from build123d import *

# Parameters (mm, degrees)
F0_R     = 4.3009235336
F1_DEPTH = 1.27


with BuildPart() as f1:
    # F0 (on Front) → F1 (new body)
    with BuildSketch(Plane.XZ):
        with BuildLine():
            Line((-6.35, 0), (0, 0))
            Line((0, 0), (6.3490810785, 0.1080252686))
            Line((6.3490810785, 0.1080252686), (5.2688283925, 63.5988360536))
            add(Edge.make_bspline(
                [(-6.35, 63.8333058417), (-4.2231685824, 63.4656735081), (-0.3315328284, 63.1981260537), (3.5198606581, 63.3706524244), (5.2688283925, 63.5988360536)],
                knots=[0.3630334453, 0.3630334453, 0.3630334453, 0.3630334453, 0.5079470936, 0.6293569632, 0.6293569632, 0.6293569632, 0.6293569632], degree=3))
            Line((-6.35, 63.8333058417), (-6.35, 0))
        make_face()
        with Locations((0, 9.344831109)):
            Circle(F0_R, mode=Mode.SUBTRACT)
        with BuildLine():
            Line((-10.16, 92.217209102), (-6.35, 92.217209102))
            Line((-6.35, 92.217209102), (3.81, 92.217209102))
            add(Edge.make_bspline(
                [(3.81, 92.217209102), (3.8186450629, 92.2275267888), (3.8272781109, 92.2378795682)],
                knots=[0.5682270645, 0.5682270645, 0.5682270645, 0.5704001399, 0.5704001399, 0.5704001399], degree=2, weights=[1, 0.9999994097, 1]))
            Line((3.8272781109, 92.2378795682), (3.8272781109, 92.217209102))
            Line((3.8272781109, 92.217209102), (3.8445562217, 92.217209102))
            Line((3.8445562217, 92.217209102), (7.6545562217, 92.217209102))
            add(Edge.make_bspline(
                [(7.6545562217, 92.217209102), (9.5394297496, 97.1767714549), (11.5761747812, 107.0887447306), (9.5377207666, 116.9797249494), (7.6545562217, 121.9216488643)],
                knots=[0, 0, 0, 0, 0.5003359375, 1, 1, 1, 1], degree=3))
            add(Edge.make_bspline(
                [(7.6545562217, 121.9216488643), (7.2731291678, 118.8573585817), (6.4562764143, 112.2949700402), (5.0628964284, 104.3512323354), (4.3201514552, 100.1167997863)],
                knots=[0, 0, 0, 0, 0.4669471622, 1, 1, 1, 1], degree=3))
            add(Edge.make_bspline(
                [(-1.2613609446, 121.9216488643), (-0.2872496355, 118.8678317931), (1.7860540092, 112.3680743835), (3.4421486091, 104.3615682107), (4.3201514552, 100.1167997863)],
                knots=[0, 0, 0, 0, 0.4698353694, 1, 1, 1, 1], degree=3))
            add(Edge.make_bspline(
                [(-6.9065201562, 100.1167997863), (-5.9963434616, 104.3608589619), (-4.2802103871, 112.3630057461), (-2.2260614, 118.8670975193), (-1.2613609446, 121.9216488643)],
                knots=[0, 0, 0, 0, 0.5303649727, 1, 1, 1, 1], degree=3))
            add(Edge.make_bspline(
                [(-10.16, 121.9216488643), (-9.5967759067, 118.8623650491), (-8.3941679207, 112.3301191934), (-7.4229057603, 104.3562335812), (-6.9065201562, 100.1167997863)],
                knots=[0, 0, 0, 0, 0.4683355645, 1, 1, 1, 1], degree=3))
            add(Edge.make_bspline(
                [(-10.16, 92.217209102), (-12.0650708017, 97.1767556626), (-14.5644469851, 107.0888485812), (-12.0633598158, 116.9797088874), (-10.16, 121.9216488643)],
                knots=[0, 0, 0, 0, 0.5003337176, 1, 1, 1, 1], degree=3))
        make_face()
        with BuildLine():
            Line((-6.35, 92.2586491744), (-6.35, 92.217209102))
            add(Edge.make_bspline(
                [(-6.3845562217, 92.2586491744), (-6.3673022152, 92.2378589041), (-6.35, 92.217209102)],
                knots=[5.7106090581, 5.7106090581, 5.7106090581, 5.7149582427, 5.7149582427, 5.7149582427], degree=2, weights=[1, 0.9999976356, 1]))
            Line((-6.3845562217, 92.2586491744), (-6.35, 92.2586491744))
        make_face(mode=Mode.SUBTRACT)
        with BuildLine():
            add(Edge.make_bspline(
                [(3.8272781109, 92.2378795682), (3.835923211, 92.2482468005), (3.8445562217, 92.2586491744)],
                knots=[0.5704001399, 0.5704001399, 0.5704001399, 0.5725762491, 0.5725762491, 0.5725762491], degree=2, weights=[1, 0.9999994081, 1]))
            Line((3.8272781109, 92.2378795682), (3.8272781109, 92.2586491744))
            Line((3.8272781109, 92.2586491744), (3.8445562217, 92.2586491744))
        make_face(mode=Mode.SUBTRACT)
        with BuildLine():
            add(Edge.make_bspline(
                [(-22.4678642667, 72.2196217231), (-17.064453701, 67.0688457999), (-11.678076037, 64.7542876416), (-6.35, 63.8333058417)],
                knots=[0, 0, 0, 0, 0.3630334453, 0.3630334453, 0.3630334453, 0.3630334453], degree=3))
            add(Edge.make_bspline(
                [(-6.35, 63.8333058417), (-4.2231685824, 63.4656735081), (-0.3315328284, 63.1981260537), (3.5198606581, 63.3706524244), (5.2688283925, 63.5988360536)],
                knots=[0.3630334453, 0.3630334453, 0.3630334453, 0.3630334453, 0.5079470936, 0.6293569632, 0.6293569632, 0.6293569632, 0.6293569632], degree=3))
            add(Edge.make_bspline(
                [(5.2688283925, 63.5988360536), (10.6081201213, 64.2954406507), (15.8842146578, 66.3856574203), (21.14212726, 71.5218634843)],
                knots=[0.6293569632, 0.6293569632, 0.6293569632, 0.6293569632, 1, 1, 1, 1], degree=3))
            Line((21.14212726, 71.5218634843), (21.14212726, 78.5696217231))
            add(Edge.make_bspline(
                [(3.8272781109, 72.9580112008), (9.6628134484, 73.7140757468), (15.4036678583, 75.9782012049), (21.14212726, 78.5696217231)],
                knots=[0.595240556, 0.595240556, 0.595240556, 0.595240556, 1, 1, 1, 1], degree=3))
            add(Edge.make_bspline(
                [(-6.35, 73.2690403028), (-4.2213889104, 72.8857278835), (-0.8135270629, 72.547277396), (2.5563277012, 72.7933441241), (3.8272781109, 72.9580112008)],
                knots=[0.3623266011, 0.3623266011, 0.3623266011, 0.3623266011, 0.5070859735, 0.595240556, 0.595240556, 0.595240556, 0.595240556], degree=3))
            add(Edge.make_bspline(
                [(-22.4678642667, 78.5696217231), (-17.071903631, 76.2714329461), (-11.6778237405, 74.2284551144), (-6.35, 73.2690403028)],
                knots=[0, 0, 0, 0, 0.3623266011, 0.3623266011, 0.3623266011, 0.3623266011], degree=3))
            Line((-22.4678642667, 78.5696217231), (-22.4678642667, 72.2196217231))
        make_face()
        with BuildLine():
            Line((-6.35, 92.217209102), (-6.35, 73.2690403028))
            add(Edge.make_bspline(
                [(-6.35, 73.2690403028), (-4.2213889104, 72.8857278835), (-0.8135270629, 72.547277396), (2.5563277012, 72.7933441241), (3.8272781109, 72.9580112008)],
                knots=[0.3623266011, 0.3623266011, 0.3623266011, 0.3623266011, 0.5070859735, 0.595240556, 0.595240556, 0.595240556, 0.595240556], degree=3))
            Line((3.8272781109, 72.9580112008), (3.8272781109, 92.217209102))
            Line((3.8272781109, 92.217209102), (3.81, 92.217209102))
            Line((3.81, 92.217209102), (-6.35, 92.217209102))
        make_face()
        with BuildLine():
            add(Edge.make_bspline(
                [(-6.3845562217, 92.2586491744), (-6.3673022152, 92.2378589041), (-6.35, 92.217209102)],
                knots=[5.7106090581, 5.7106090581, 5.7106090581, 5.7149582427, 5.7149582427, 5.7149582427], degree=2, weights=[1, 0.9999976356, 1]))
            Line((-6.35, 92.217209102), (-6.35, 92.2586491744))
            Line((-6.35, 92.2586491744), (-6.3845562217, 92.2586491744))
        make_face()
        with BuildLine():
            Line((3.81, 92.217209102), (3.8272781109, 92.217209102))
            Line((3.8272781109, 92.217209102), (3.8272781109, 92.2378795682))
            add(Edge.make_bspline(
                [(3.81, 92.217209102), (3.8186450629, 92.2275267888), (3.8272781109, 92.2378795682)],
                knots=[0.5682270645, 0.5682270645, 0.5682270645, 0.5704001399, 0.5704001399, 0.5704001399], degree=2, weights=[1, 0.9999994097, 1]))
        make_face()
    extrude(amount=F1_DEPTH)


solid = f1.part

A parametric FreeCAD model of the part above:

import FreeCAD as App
import Part
import Sketcher
from FreeCAD import Vector
Q = App.Units.Quantity

doc = App.newDocument("Part")
params = doc.addObject("Spreadsheet::Sheet", "Params")
for row, (alias, value) in enumerate([
    ("sketch1_length", "2.5 in"),
    ("pad1_length", "0.05 in"),
], start=1):
    params.set(f"A{row}", alias)
    params.set(f"B{row}", "=" + value)
    params.setAlias(f"B{row}", alias)

body = doc.addObject("PartDesign::Body", "Body")

sketch1 = body.newObject("Sketcher::SketchObject", "Sketch")
sketch1.AttachmentSupport = (doc.getObject("XZ_Plane"), [""])
sketch1.MapMode = "FlatFace"
sketch1.addGeometry([
    Part.LineSegment(Vector(3.827278, 72.958011, 0), Vector(3.827278, 92.217209, 0)),
    Part.LineSegment(Vector(3.827278, 92.217209, 0), Vector(7.654556, 92.217209, 0)),
    Part.BSplineCurve([Vector(7.654556, 92.217209, 0), Vector(9.53943, 97.176771, 0), Vector(11.576175, 107.088745, 0), Vector(9.537721, 116.979725, 0), Vector(7.654556, 121.921649, 0)], [4, 1, 4], [0, 0.500335938, 1], False, 3, [1, 1, 1, 1, 1], False),
    Part.BSplineCurve([Vector(7.654556, 121.921649, 0), Vector(7.273129, 118.857359, 0), Vector(6.456276, 112.29497, 0), Vector(5.062896, 104.351232, 0), Vector(4.320151, 100.1168, 0)], [4, 1, 4], [0, 0.466947162, 1], False, 3, [1, 1, 1, 1, 1], False),
    Part.BSplineCurve([Vector(-1.261361, 121.921649, 0), Vector(-0.28725, 118.867832, 0), Vector(1.786054, 112.368074, 0), Vector(3.442149, 104.361568, 0), Vector(4.320151, 100.1168, 0)], [4, 1, 4], [0, 0.469835369, 1], False, 3, [1, 1, 1, 1, 1], False),
    Part.BSplineCurve([Vector(-6.90652, 100.1168, 0), Vector(-5.996343, 104.360859, 0), Vector(-4.28021, 112.363006, 0), Vector(-2.226061, 118.867098, 0), Vector(-1.261361, 121.921649, 0)], [4, 1, 4], [0, 0.530364973, 1], False, 3, [1, 1, 1, 1, 1], False),
    Part.BSplineCurve([Vector(-10.16, 121.921649, 0), Vector(-9.596776, 118.862365, 0), Vector(-8.394168, 112.330119, 0), Vector(-7.422906, 104.356234, 0), Vector(-6.90652, 100.1168, 0)], [4, 1, 4], [0, 0.468335565, 1], False, 3, [1, 1, 1, 1, 1], False),
    Part.BSplineCurve([Vector(-10.16, 92.217209, 0), Vector(-12.065071, 97.176756, 0), Vector(-14.564447, 107.088849, 0), Vector(-12.06336, 116.979709, 0), Vector(-10.16, 121.921649, 0)], [4, 1, 4], [0, 0.500333718, 1], False, 3, [1, 1, 1, 1, 1], False),
    Part.LineSegment(Vector(-10.16, 92.217209, 0), Vector(-6.35, 92.217209, 0)),
    Part.LineSegment(Vector(-6.35, 92.217209, 0), Vector(-6.35, 73.26904, 0)),
    Part.BSplineCurve([Vector(-22.467864, 78.569622, 0), Vector(-17.071904, 76.271433, 0), Vector(-11.677824, 74.228455, 0), Vector(-6.35, 73.26904, 0)], [4, 4], [0, 0.362326601], False, 3, [1, 1, 1, 1], False),
    Part.LineSegment(Vector(-22.467864, 78.569622, 0), Vector(-22.467864, 72.219622, 0)),
    Part.BSplineCurve([Vector(-22.467864, 72.219622, 0), Vector(-17.064454, 67.068846, 0), Vector(-11.678076, 64.754288, 0), Vector(-6.35, 63.833306, 0)], [4, 4], [0, 0.363033445], False, 3, [1, 1, 1, 1], False),
    Part.LineSegment(Vector(-6.35, 63.833306, 0), Vector(-6.35, 0, 0)),
    Part.LineSegment(Vector(-6.35, 0, 0), Vector(0, 0, 0)),
    Part.LineSegment(Vector(0, 0, 0), Vector(6.349081, 0.108025, 0)),
    Part.LineSegment(Vector(6.349081, 0.108025, 0), Vector(5.268828, 63.598836, 0)),
    Part.BSplineCurve([Vector(5.268828, 63.598836, 0), Vector(10.60812, 64.295441, 0), Vector(15.884215, 66.385657, 0), Vector(21.142127, 71.521863, 0)], [4, 4], [0.629356963, 1], False, 3, [1, 1, 1, 1], False),
    Part.LineSegment(Vector(21.142127, 71.521863, 0), Vector(21.142127, 78.569622, 0)),
    Part.BSplineCurve([Vector(3.827278, 72.958011, 0), Vector(9.662813, 73.714076, 0), Vector(15.403668, 75.978201, 0), Vector(21.142127, 78.569622, 0)], [4, 4], [0.595240556, 1], False, 3, [1, 1, 1, 1], False),
    Part.Circle(Vector(0, 9.344831, 0), Vector(0, 0, 1), 4.300924),
    Part.BSplineCurve([Vector(3.827278, 92.23788, 0), Vector(3.835923, 92.248247, 0), Vector(3.844556, 92.258649, 0)], [3, 3], [0.57040014, 0.572576249], False, 2, [1, 0.999999408, 1], False),
    Part.LineSegment(Vector(3.827278, 92.23788, 0), Vector(3.827278, 92.258649, 0)),
    Part.LineSegment(Vector(3.827278, 92.258649, 0), Vector(3.844556, 92.258649, 0)),
], False)
sketch1.addConstraint([
    Sketcher.Constraint("Block", 2),
    Sketcher.Constraint("Block", 3),
    Sketcher.Constraint("Block", 4),
    Sketcher.Constraint("Block", 5),
    Sketcher.Constraint("Block", 6),
    Sketcher.Constraint("Block", 7),
    Sketcher.Constraint("Block", 10),
    Sketcher.Constraint("Block", 12),
    Sketcher.Constraint("Block", 17),
    Sketcher.Constraint("Block", 19),
    Sketcher.Constraint("Block", 21),
    Sketcher.Constraint("Coincident", 0, 2, 1, 1),
    Sketcher.Constraint("Coincident", 1, 2, 2, 1),
    Sketcher.Constraint("Coincident", 7, 1, 8, 1),
    Sketcher.Constraint("Coincident", 8, 2, 9, 1),
    Sketcher.Constraint("Coincident", 9, 2, 10, 2),
    Sketcher.Constraint("Coincident", 10, 1, 11, 1),
    Sketcher.Constraint("Coincident", 11, 2, 12, 1),
    Sketcher.Constraint("Coincident", 12, 2, 13, 1),
    Sketcher.Constraint("Coincident", 13, 2, 14, 1),
    Sketcher.Constraint("Coincident", 14, 2, 15, 1),
    Sketcher.Constraint("Coincident", 15, 2, 16, 1),
    Sketcher.Constraint("Coincident", 16, 2, 17, 1),
    Sketcher.Constraint("Coincident", 17, 2, 18, 1),
    Sketcher.Constraint("Coincident", 18, 2, 19, 2),
    Sketcher.Constraint("Coincident", 19, 1, 0, 1),
    Sketcher.Constraint("Coincident", 21, 1, 22, 1),
    Sketcher.Constraint("Coincident", 22, 2, 23, 1),
    Sketcher.Constraint("Coincident", 23, 2, 21, 2),
    Sketcher.Constraint("Vertical", 0),
    Sketcher.Constraint("Horizontal", 1),
    Sketcher.Constraint("Horizontal", 8),
    Sketcher.Constraint("Vertical", 9),
    Sketcher.Constraint("Vertical", 13),
    Sketcher.Constraint("Horizontal", 14),
    Sketcher.Constraint("Vertical", 22),
    Sketcher.Constraint("Horizontal", 23),
    Sketcher.Constraint("Coincident", 14, 2, -1, 1),
    Sketcher.Constraint("PointOnObject", 20, 3, -2),
    Sketcher.Constraint("Perpendicular", 15, 16),
    Sketcher.Constraint("Distance", 16, Q("2.5 in")),
    Sketcher.Constraint("Diameter", 20, 8.601847),
    Sketcher.Constraint("DistanceY", -1, 1, 20, 3, 9.344831),
])
sketch1.setExpression("Constraints[40]", "Params.sketch1_length")
pad1 = body.newObject("PartDesign::Pad", "Pad")
pad1.Profile = sketch1
pad1.setExpression("Length", "Params.pad1_length")

doc.recompute()
